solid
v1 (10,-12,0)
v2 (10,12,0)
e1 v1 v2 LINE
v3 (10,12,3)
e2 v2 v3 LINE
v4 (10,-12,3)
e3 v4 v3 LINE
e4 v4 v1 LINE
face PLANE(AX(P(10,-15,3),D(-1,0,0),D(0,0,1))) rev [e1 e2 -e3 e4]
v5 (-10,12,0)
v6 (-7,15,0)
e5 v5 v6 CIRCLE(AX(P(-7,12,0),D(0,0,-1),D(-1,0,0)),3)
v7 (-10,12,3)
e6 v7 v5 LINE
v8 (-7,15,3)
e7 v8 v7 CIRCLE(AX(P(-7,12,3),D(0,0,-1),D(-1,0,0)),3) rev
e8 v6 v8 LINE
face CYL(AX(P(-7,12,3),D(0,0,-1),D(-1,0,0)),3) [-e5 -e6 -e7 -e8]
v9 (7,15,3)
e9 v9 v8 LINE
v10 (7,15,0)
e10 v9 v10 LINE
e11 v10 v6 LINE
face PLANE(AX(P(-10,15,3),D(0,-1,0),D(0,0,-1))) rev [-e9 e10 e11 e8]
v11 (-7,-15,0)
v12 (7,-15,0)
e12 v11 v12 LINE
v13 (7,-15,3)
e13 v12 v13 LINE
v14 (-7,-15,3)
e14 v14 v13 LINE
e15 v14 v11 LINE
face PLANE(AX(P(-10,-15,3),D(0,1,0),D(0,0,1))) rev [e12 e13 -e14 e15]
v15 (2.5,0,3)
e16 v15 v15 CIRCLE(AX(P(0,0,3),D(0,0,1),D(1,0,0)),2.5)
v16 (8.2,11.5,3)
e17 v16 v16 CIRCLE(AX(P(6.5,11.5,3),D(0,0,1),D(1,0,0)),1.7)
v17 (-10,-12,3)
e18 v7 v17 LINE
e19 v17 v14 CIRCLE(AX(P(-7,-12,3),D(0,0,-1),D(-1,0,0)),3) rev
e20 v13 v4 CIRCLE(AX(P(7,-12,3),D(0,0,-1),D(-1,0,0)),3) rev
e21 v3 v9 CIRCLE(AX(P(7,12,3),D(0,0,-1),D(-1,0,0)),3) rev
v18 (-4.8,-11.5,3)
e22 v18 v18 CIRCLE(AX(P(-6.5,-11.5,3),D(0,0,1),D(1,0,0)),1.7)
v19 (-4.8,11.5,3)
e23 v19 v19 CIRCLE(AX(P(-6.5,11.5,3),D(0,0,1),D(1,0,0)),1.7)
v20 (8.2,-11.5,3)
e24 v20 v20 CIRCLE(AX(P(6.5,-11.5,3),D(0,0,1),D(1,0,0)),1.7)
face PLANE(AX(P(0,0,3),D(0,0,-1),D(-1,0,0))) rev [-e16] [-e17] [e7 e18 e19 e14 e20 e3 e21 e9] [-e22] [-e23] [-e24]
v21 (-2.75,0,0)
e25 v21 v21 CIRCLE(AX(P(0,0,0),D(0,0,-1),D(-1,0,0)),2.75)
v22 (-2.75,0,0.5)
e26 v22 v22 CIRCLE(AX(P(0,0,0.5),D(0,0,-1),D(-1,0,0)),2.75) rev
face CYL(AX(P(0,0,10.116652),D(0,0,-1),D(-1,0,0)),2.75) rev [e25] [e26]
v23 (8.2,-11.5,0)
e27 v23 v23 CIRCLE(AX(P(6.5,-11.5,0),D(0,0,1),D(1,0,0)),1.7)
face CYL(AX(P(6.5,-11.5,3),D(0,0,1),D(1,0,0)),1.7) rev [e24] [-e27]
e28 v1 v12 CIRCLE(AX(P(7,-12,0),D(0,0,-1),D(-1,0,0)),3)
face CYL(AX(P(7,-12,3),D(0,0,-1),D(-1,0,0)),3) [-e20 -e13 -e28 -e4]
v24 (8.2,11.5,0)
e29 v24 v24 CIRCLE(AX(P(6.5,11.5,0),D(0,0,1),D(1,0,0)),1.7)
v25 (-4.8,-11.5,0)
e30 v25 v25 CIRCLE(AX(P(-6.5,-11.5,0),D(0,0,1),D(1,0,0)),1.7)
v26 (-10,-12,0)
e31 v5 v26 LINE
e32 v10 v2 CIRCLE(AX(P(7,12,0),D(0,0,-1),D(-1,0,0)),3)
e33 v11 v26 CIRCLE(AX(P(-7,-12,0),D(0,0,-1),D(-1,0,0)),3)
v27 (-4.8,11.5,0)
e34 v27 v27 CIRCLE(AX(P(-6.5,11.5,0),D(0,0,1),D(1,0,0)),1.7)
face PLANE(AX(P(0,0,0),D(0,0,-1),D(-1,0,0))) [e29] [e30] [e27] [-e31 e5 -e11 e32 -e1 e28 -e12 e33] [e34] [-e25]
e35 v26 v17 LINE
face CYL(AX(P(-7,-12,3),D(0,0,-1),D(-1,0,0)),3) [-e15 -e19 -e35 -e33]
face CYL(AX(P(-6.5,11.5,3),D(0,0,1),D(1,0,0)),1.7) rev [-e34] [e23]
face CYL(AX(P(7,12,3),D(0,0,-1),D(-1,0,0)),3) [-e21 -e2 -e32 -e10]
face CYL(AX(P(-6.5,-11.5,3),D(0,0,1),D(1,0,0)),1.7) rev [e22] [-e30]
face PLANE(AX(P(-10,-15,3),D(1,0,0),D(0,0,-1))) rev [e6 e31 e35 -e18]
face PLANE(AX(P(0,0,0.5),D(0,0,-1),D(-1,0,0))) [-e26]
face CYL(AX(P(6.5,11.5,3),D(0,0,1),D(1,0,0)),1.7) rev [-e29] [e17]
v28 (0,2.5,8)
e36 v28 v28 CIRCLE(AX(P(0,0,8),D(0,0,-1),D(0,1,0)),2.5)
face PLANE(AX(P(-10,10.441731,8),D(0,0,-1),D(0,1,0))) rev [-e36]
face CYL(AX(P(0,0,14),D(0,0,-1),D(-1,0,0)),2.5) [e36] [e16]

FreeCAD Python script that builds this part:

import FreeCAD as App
import Part
import Sketcher

V = App.Vector
Q = App.Units.Quantity


def edges_at(feature, points):
    """Names of the edges that pass closest to the given points."""
    edges = feature.Shape.Edges
    near = lambda p: min(range(len(edges)), key=lambda i: edges[i].distToShape(Part.Vertex(*p))[0])
    return sorted({f"Edge{near(p) + 1}" for p in points})


def add_polygon(sketch, points):
    """Adds a closed chain of lines whose ends are joined by coincident constraints."""
    first, n = sketch.GeometryCount, len(points)
    for a, b in zip(points, points[1:] + points[:1]):
        sketch.addGeometry(Part.LineSegment(App.Vector(*a, 0), App.Vector(*b, 0)), False)
    for i in range(n):
        sketch.addConstraint(Sketcher.Constraint("Coincident", first + i, 2, first + (i + 1) % n, 1))

doc = App.newDocument("Part")
body = doc.addObject("PartDesign::Body", "Body")

# Sketch on XY plane
sketch1 = body.newObject("Sketcher::SketchObject", "Sketch")
sketch1.AttachmentSupport = (doc.getObject("XY_Plane"), [""])
sketch1.MapMode = "FlatFace"
add_polygon(sketch1, [(-10, 15), (-10, -15), (10, -15), (10, 15)])  # lines 0-3
sketch1.addConstraint([
    Sketcher.Constraint("Vertical", 0),
    Sketcher.Constraint("Horizontal", 1),
    Sketcher.Constraint("Vertical", 2),
    Sketcher.Constraint("Horizontal", 3),
    Sketcher.Constraint("Symmetric", 0, 2, 2, 2, -1, 1),
    Sketcher.Constraint("DistanceX", 1, 1, 1, 2, Q("20 mm")),
    Sketcher.Constraint("DistanceY", 0, 2, 0, 1, Q("30 mm")),
])
pad1 = body.newObject("PartDesign::Pad", "Pad")
pad1.Profile = sketch1
pad1.Length = 3

# Sketch on XY plane
sketch2 = body.newObject("Sketcher::SketchObject", "Sketch001")
sketch2.AttachmentSupport = (doc.getObject("XY_Plane"), [""])
sketch2.MapMode = "FlatFace"
sketch2.AttachmentOffset = App.Placement(V(0, 0, 3), App.Rotation())
sketch2.addGeometry([
    Part.Circle(V(-6.5, 11.5, 0), V(0, 0, 1), 1.7),
    Part.Circle(V(6.5, 11.5, 0), V(0, 0, 1), 1.7),
    Part.Circle(V(6.5, -11.5, 0), V(0, 0, 1), 1.7),
    Part.Circle(V(-6.5, -11.5, 0), V(0, 0, 1), 1.7),
], False)
sketch2.addConstraint([
    Sketcher.Constraint("Equal", 0, 1),
    Sketcher.Constraint("Equal", 1, 2),
    Sketcher.Constraint("Equal", 2, 3),
    Sketcher.Constraint("Symmetric", 0, 3, 2, 3, -1, 1),
    Sketcher.Constraint("Symmetric", 1, 3, 3, 3, -1, 1),
    Sketcher.Constraint("Symmetric", 0, 3, 1, 3, -2),
    Sketcher.Constraint("Diameter", 0, Q("3.4 mm")),
    Sketcher.Constraint("DistanceX", 0, 3, 1, 3, Q("13 mm")),
    Sketcher.Constraint("DistanceY", 2, 3, 1, 3, Q("23 mm")),
])
doc.recompute()
hole = body.newObject("PartDesign::Hole", "Hole")
hole.Profile = sketch2
hole.ThreadType = "None"
hole.Diameter = 3.4
hole.DepthType = "ThroughAll"

# Sketch on XY plane
sketch3 = body.newObject("Sketcher::SketchObject", "Sketch002")
sketch3.AttachmentSupport = (doc.getObject("XY_Plane"), [""])
sketch3.MapMode = "FlatFace"
sketch3.addGeometry(Part.Circle(V(0, 0, 0), V(0, 0, 1), 3.4), False)
sketch3.addConstraint([
    Sketcher.Constraint("Coincident", 0, 3, -1, 1),
    Sketcher.Constraint("Diameter", 0, Q("6.8 mm")),
])
pocket1 = body.newObject("PartDesign::Pocket", "Pocket")
pocket1.Profile = sketch3
pocket1.Length = 0.5
pocket1.Reversed = True
doc.recompute()

fillet = body.newObject("PartDesign::Fillet", "Fillet")
fillet.Base = (pocket1, edges_at(pocket1, [
    (10, -15, 1.5),
    (-10, -15, 1.5),
    (-10, 15, 1.5),
    (10, 15, 1.5),
]))
fillet.Radius = 3

# Sketch on XY plane
sketch4 = body.newObject("Sketcher::SketchObject", "Sketch003")
sketch4.AttachmentSupport = (doc.getObject("XY_Plane"), [""])
sketch4.MapMode = "FlatFace"
sketch4.AttachmentOffset = App.Placement(V(0, 0, 3), App.Rotation())
add_polygon(sketch4, [(-4, 8), (-4, -8), (4, -8), (4, 8)])  # lines 0-3
sketch4.addConstraint([
    Sketcher.Constraint("Vertical", 0),
    Sketcher.Constraint("Horizontal", 1),
    Sketcher.Constraint("Vertical", 2),
    Sketcher.Constraint("Horizontal", 3),
    Sketcher.Constraint("Symmetric", 0, 2, 2, 2, -1, 1),
    Sketcher.Constraint("DistanceX", 1, 1, 1, 2, Q("8 mm")),
    Sketcher.Constraint("DistanceY", 0, 2, 0, 1, Q("15 mm")),
])
pad2 = body.newObject("PartDesign::Pad", "Pad001")
pad2.Profile = sketch4
pad2.Length = 11

# Sketch on YZ plane
sketch5 = body.newObject("Sketcher::SketchObject", "Sketch004")
sketch5.AttachmentSupport = (doc.getObject("YZ_Plane"), [""])
sketch5.MapMode = "FlatFace"
sketch5.AttachmentOffset = App.Placement(V(0, 0, 4), App.Rotation())
add_polygon(sketch5, [(-6, 14), (-7, 14), (-6.5, 13.1)])  # lines 0-2
add_polygon(sketch5, [(-7.5, 13.1), (-7, 14), (-7.5, 14)])  # lines 3-5
add_polygon(sketch5, [(-5, 14), (-6, 14), (-5.5, 13.1)])  # lines 6-8
add_polygon(sketch5, [(-4, 14), (-5, 14), (-4.5, 13.1)])  # lines 9-11
add_polygon(sketch5, [(-3, 14), (-4, 14), (-3.5, 13.1)])  # lines 12-14
add_polygon(sketch5, [(7, 14), (7.5, 13.1), (7.5, 14)])  # lines 15-17
add_polygon(sketch5, [(-2, 14), (-3, 14), (-2.5, 13.1)])  # lines 18-20
add_polygon(sketch5, [(6.5, 13.1), (7, 14), (6, 14)])  # lines 21-23
add_polygon(sketch5, [(-1, 14), (-2, 14), (-1.5, 13.1)])  # lines 24-26
add_polygon(sketch5, [(5.5, 13.1), (6, 14), (5, 14)])  # lines 27-29
add_polygon(sketch5, [(0, 14), (-1, 14), (-0.5, 13.1)])  # lines 30-32
add_polygon(sketch5, [(4.5, 13.1), (5, 14), (4, 14)])  # lines 33-35
add_polygon(sketch5, [(1, 14), (0, 14), (0.5, 13.1)])  # lines 36-38
add_polygon(sketch5, [(3.5, 13.1), (4, 14), (3, 14)])  # lines 39-41
add_polygon(sketch5, [(2, 14), (1, 14), (1.5, 13.1)])  # lines 42-44
add_polygon(sketch5, [(2.5, 13.1), (3, 14), (2, 14)])  # lines 45-47
sketch5.addConstraint([
    Sketcher.Constraint("Horizontal", 0),
    Sketcher.Constraint("Horizontal", 4),
    Sketcher.Constraint("Vertical", 5),
    Sketcher.Constraint("Horizontal", 6),
    Sketcher.Constraint("Horizontal", 9),
    Sketcher.Constraint("Horizontal", 12),
    Sketcher.Constraint("Vertical", 16),
    Sketcher.Constraint("Horizontal", 17),
    Sketcher.Constraint("Horizontal", 18),
    Sketcher.Constraint("Horizontal", 22),
    Sketcher.Constraint("Horizontal", 24),
    Sketcher.Constraint("Horizontal", 28),
    Sketcher.Constraint("Horizontal", 30),
    Sketcher.Constraint("Horizontal", 34),
    Sketcher.Constraint("Horizontal", 36),
    Sketcher.Constraint("Horizontal", 40),
    Sketcher.Constraint("Horizontal", 42),
    Sketcher.Constraint("Horizontal", 46),
    Sketcher.Constraint("Coincident", 3, 2, 0, 2),
    Sketcher.Constraint("Coincident", 6, 2, 2, 2),
    Sketcher.Constraint("Coincident", 9, 2, 8, 2),
    Sketcher.Constraint("Coincident", 12, 2, 11, 2),
    Sketcher.Constraint("Coincident", 18, 2, 14, 2),
    Sketcher.Constraint("Coincident", 21, 2, 17, 2),
    Sketcher.Constraint("Coincident", 24, 2, 20, 2),
    Sketcher.Constraint("Coincident", 27, 2, 22, 2),
    Sketcher.Constraint("Coincident", 30, 2, 26, 2),
    Sketcher.Constraint("Coincident", 33, 2, 28, 2),
    Sketcher.Constraint("Coincident", 36, 2, 32, 2),
    Sketcher.Constraint("Coincident", 39, 2, 34, 2),
    Sketcher.Constraint("Coincident", 42, 2, 38, 2),
    Sketcher.Constraint("Coincident", 45, 2, 40, 2),
    Sketcher.Constraint("Coincident", 46, 2, 44, 2),
    Sketcher.Constraint("Symmetric", 5, 2, 15, 2, -2),
    Sketcher.Constraint("Symmetric", 1, 2, 23, 2, -2),
    Sketcher.Constraint("Symmetric", 7, 2, 29, 2, -2),
    Sketcher.Constraint("Symmetric", 10, 2, 35, 2, -2),
    Sketcher.Constraint("Symmetric", 31, 2, 37, 2, -2),
    Sketcher.Constraint("Symmetric", 13, 2, 41, 2, -2),
    Sketcher.Constraint("Symmetric", 25, 2, 43, 2, -2),
    Sketcher.Constraint("Symmetric", 19, 2, 47, 2, -2),
    Sketcher.Constraint("PointOnObject", 32, 2, -2),
    Sketcher.Constraint("Parallel", 2, 3),
    Sketcher.Constraint("Parallel", 1, 7),
    Sketcher.Constraint("Parallel", 3, 8),
    Sketcher.Constraint("Parallel", 7, 10),
    Sketcher.Constraint("Parallel", 8, 11),
    Sketcher.Constraint("Parallel", 10, 13),
    Sketcher.Constraint("Parallel", 11, 14),
    Sketcher.Constraint("Parallel", 13, 15),
    Sketcher.Constraint("Parallel", 15, 19),
    Sketcher.Constraint("Parallel", 14, 20),
    Sketcher.Constraint("Parallel", 19, 23),
    Sketcher.Constraint("Parallel", 23, 25),
    Sketcher.Constraint("Parallel", 21, 26),
    Sketcher.Constraint("Parallel", 25, 29),
    Sketcher.Constraint("Parallel", 29, 31),
    Sketcher.Constraint("Parallel", 27, 32),
    Sketcher.Constraint("Parallel", 31, 35),
    Sketcher.Constraint("Parallel", 35, 37),
    Sketcher.Constraint("Parallel", 33, 38),
    Sketcher.Constraint("Parallel", 37, 41),
    Sketcher.Constraint("Parallel", 39, 44),
    Sketcher.Constraint("Horizontal", 1, 2, 5, 2),
    Sketcher.Constraint("Horizontal", 5, 2, 7, 2),
    Sketcher.Constraint("Horizontal", 7, 2, 10, 2),
    Sketcher.Constraint("Horizontal", 10, 2, 13, 2),
    Sketcher.Constraint("Horizontal", 15, 2, 19, 2),
    Sketcher.Constraint("Horizontal", 23, 2, 25, 2),
    Sketcher.Constraint("Horizontal", 29, 2, 31, 2),
    Sketcher.Constraint("DistanceX", 0, 2, 0, 1, Q("1 mm")),
    Sketcher.Constraint("Angle", 1, Q("-60 deg")),
    Sketcher.Constraint("DistanceY", -1, 1, 0, 2, Q("14 mm")),
])
pocket2 = body.newObject("PartDesign::Pocket", "Pocket001")
pocket2.Profile = sketch5
pocket2.Type = "ThroughAll"
pocket2.Midplane = True

# Sketch on XY plane
sketch6 = body.newObject("Sketcher::SketchObject", "Sketch005")
sketch6.AttachmentSupport = (doc.getObject("XY_Plane"), [""])
sketch6.MapMode = "FlatFace"
sketch6.AttachmentOffset = App.Placement(V(0, 0, 3), App.Rotation())
add_polygon(sketch6, [(-14.9, 19.9), (-14.9, -19.9), (14.9, -19.9), (14.9, 19.9)])  # lines 0-3
sketch6.addGeometry(Part.Circle(V(0, 0, 0), V(0, 0, 1), 2.5), False)  # 4
sketch6.addConstraint([
    Sketcher.Constraint("Vertical", 0),
    Sketcher.Constraint("Horizontal", 1),
    Sketcher.Constraint("Vertical", 2),
    Sketcher.Constraint("Horizontal", 3),
    Sketcher.Constraint("Coincident", 4, 3, -1, 1),
    Sketcher.Constraint("Symmetric", 0, 2, 2, 2, -1, 1),
    Sketcher.Constraint("Diameter", 4, Q("5 mm")),
    Sketcher.Constraint("DistanceX", 1, 1, 1, 2, Q("29.736 mm")),
    Sketcher.Constraint("DistanceY", 0, 2, 0, 1, Q("39.736 mm")),
])
pocket3 = body.newObject("PartDesign::Pocket", "Pocket002")
pocket3.Profile = sketch6
pocket3.Type = "ThroughAll"
pocket3.Reversed = True

# Sketch on YZ plane
sketch7 = body.newObject("Sketcher::SketchObject", "Sketch006")
sketch7.AttachmentSupport = (doc.getObject("YZ_Plane"), [""])
sketch7.MapMode = "FlatFace"
sketch7.AttachmentOffset = App.Placement(V(0, 0, 10), App.Rotation())
add_polygon(sketch7, [(10, 15), (-11, 15), (-11, 8), (10, 8)])  # lines 0-3
sketch7.addConstraint([
    Sketcher.Constraint("Horizontal", 0),
    Sketcher.Constraint("Vertical", 1),
    Sketcher.Constraint("Horizontal", 2),
    Sketcher.Constraint("Vertical", 3),
    Sketcher.Constraint("DistanceY", -1, 1, 1, 2, Q("8 mm")),
    Sketcher.Constraint("DistanceX", 0, 2, 0, 1, Q("21.108621 mm")),
    Sketcher.Constraint("DistanceY", 1, 2, 1, 1, Q("7.430235 mm")),
    Sketcher.Constraint("DistanceX", 0, 2, -1, 1, Q("10.66689 mm")),
])
pocket4 = body.newObject("PartDesign::Pocket", "Pocket003")
pocket4.Profile = sketch7
pocket4.Type = "ThroughAll"

# Sketch on XY plane
sketch8 = body.newObject("Sketcher::SketchObject", "Sketch007")
sketch8.AttachmentSupport = (doc.getObject("XY_Plane"), [""])
sketch8.MapMode = "FlatFace"
sketch8.addGeometry([
    Part.Circle(V(0, 0, 0), V(0, 0, 1), 3.4),
    Part.Circle(V(0, 0, 0), V(0, 0, 1), 2.8),
], False)
sketch8.addConstraint([
    Sketcher.Constraint("Coincident", 0, 3, -1, 1),
    Sketcher.Constraint("Coincident", 1, 3, -1, 1),
    Sketcher.Constraint("Diameter", 0, Q("6.8 mm")),
    Sketcher.Constraint("Diameter", 1, Q("5.5 mm")),
])
pad3 = body.newObject("PartDesign::Pad", "Pad002")
pad3.Profile = sketch8
pad3.Length = 0.5

doc.recompute()
